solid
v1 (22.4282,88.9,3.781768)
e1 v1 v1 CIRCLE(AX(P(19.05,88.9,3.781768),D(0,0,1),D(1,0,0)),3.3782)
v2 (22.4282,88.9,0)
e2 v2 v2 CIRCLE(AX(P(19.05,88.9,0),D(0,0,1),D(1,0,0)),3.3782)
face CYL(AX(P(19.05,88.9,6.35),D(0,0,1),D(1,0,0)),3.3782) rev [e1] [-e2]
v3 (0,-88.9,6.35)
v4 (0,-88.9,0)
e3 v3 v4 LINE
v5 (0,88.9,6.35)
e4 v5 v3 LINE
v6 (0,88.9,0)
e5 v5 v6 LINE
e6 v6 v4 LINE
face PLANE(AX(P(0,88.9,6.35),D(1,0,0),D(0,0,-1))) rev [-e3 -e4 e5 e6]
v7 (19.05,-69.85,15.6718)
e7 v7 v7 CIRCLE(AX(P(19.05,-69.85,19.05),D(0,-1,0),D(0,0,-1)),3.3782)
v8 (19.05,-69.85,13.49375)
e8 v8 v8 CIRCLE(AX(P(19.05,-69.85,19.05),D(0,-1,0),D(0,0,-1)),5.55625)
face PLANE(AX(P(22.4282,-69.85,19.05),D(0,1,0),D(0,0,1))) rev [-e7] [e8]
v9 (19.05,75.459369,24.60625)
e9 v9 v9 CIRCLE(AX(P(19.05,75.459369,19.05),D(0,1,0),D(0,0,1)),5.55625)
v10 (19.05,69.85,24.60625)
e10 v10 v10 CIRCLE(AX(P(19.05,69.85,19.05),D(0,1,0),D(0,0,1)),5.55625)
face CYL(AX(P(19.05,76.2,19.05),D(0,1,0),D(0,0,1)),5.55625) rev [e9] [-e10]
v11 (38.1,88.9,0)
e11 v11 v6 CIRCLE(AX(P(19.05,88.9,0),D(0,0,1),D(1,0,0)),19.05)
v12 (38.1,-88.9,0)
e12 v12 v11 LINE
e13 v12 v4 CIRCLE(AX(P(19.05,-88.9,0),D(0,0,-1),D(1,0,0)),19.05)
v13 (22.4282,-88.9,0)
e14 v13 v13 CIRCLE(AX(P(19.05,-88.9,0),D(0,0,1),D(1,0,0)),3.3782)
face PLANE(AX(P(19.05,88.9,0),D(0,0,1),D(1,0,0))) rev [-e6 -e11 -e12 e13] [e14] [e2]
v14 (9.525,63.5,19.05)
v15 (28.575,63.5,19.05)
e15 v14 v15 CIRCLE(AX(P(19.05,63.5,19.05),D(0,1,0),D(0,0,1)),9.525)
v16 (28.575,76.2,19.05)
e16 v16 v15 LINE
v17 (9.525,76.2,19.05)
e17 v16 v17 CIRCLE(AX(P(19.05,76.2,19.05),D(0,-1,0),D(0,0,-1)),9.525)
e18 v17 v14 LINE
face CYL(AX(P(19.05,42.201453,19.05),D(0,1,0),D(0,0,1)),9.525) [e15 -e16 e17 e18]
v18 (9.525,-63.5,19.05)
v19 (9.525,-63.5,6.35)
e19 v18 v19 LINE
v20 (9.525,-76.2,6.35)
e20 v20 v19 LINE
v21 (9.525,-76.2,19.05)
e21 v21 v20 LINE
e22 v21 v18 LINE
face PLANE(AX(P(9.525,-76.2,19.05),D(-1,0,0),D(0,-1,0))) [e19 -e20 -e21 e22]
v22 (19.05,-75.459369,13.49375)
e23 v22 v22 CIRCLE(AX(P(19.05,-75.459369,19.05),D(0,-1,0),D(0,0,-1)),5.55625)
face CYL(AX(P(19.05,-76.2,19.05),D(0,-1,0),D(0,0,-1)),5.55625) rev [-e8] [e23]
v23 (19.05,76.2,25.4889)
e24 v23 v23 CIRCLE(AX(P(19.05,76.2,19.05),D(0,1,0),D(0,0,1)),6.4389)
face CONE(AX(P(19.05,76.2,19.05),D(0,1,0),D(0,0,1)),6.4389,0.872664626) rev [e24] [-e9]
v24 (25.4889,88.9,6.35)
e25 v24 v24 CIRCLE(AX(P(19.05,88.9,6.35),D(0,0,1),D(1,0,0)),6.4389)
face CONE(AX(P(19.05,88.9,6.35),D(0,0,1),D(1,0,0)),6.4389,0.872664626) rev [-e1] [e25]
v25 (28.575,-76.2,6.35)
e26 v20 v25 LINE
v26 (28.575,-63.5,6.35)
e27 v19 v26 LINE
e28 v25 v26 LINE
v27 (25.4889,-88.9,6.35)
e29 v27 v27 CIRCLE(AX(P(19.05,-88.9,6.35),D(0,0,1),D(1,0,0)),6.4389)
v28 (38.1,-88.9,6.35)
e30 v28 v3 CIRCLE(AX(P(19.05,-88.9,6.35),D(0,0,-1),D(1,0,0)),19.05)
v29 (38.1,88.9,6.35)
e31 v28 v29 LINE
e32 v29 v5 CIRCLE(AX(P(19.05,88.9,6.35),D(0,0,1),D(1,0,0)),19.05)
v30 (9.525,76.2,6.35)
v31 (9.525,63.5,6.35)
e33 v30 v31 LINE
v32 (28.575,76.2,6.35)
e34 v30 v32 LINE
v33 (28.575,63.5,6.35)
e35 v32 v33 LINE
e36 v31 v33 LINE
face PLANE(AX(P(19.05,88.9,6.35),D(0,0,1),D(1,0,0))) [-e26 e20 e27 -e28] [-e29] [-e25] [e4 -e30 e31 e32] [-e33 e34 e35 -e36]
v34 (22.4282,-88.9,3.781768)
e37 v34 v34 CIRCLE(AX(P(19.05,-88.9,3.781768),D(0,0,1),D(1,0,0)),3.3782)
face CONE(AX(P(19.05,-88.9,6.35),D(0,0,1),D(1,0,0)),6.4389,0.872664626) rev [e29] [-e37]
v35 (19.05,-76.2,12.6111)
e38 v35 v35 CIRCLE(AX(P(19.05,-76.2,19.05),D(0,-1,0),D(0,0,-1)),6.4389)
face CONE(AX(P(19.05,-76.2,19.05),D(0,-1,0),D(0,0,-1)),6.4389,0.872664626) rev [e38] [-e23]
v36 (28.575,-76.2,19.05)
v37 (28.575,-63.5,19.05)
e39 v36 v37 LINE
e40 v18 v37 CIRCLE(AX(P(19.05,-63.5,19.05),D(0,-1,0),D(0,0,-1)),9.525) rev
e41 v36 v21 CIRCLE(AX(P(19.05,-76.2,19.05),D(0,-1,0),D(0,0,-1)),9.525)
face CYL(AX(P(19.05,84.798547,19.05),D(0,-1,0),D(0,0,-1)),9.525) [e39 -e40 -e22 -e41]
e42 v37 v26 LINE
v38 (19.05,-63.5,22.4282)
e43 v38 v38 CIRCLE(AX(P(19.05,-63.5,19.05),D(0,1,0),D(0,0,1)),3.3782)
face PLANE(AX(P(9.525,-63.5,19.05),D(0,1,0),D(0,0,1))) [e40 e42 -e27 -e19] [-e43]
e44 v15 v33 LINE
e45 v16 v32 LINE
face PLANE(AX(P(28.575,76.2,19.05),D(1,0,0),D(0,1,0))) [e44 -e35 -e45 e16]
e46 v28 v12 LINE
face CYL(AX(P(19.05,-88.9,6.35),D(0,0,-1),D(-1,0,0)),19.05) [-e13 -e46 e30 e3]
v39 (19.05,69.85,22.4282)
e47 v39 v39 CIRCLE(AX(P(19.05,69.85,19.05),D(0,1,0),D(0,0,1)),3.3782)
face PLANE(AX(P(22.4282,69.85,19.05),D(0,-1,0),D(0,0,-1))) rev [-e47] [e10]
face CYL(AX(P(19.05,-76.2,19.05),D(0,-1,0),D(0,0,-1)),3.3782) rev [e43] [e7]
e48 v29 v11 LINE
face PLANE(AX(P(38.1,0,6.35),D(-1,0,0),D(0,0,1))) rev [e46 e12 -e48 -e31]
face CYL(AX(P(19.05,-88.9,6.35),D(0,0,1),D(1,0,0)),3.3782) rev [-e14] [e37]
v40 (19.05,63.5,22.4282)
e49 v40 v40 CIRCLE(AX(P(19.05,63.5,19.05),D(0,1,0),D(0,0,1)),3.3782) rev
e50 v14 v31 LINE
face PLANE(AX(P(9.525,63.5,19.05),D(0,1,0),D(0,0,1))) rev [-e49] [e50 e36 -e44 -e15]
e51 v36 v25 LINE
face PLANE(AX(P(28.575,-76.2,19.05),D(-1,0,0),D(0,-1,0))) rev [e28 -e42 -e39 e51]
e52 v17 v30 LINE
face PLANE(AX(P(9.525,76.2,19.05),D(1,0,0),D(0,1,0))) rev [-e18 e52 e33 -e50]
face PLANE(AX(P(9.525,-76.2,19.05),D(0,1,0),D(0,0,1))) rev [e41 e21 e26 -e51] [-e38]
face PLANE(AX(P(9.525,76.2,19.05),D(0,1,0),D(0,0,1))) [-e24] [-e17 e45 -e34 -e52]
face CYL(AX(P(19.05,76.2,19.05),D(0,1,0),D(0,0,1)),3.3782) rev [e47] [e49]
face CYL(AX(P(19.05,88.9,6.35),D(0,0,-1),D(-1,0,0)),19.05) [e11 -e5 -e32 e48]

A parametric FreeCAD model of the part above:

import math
import FreeCAD as App
import Part
import Sketcher
from FreeCAD import Vector
Q = App.Units.Quantity

doc = App.newDocument("Part")
body = doc.addObject("PartDesign::Body", "Body")

# Sketch on XY plane
sketch1 = doc.addObject("Sketcher::SketchObject", "Sketch")
body.addObject(sketch1)
sketch1.AttachmentSupport = (doc.XY_Plane, [""])
sketch1.MapMode = "FlatFace"
sketch1.addGeometry([
    Part.LineSegment(Vector(0, 0, 0), Vector(38, 0, 0)),
    Part.LineSegment(Vector(38, 0, 0), Vector(38, 89, 0)),
    Part.ArcOfCircle(Part.Circle(Vector(19, 89, 0), Vector(0, 0, 1), 19), math.radians(0), math.radians(180)),
    Part.LineSegment(Vector(0, 89, 0), Vector(0, 0, 0)),
], False)
sketch1.addConstraint([
    Sketcher.Constraint("Coincident", 0, 2, 1, 1),
    Sketcher.Constraint("Tangent", 1, 2, 2, 1),
    Sketcher.Constraint("Tangent", 2, 2, 3, 1),
    Sketcher.Constraint("Coincident", 3, 2, 0, 1),
    Sketcher.Constraint("Horizontal", 0),
    Sketcher.Constraint("Vertical", 1),
    Sketcher.Constraint("Vertical", 3),
    Sketcher.Constraint("Coincident", 3, 2, -1, 1),
    Sketcher.Constraint("Radius", 2, Q("0.75 in")),
    Sketcher.Constraint("DistanceY", 1, 1, 1, 2, Q("3.5 in")),
])
pad1 = doc.addObject("PartDesign::Pad", "Pad")
body.addObject(pad1)
pad1.Profile = sketch1
pad1.Length = Q("0.25 in")

# Sketch on XY plane
sketch2 = doc.addObject("Sketcher::SketchObject", "Sketch001")
body.addObject(sketch2)
sketch2.AttachmentSupport = (doc.XY_Plane, [""])
sketch2.MapMode = "FlatFace"
sketch2.AttachmentOffset = App.Placement(Vector(0, 0, 0.25 * 25.4), App.Rotation())
sketch2.addGeometry(Part.Circle(Vector(19.1, 88.9, 0), Vector(0, 0, 1), 3.4), False)
sketch2.addConstraint([
    Sketcher.Constraint("Diameter", 0, Q("0.266 in")),
    Sketcher.Constraint("DistanceY", -1, 1, 0, 3, Q("3.5 in")),
    Sketcher.Constraint("DistanceX", -1, 1, 0, 3, Q("0.75 in")),
])
doc.recompute()
hole = doc.addObject("PartDesign::Hole", "Hole")
body.addObject(hole)
hole.Profile = sketch2
hole.ThreadType = "None"
hole.Diameter = Q("0.266 in")
hole.DepthType = "ThroughAll"
hole.HoleCutType = "Countersink"
hole.HoleCutDiameter = Q("0.507 in")
hole.HoleCutCountersinkAngle = 100

# Sketch on XY plane
sketch3 = doc.addObject("Sketcher::SketchObject", "Sketch002")
body.addObject(sketch3)
sketch3.AttachmentSupport = (doc.XY_Plane, [""])
sketch3.MapMode = "FlatFace"
sketch3.AttachmentOffset = App.Placement(Vector(0, 0, 0.25 * 25.4), App.Rotation())
sketch3.addGeometry([
    Part.LineSegment(Vector(10, 76, 0), Vector(10, 64, 0)),
    Part.LineSegment(Vector(10, 64, 0), Vector(29, 64, 0)),
    Part.LineSegment(Vector(29, 64, 0), Vector(29, 76, 0)),
    Part.LineSegment(Vector(29, 76, 0), Vector(10, 76, 0)),
], False)
sketch3.addConstraint([
    Sketcher.Constraint("Coincident", 0, 2, 1, 1),
    Sketcher.Constraint("Coincident", 1, 2, 2, 1),
    Sketcher.Constraint("Coincident", 2, 2, 3, 1),
    Sketcher.Constraint("Coincident", 3, 2, 0, 1),
    Sketcher.Constraint("Vertical", 0),
    Sketcher.Constraint("Horizontal", 1),
    Sketcher.Constraint("Vertical", 2),
    Sketcher.Constraint("Horizontal", 3),
    Sketcher.Constraint("DistanceY", 0, 2, 0, 1, Q("0.5 in")),
    Sketcher.Constraint("DistanceY", -1, 1, 2, 2, Q("3 in")),
    Sketcher.Constraint("DistanceX", 1, 1, 1, 2, Q("0.75 in")),
    Sketcher.Constraint("DistanceX", -1, 1, 0, 2, Q("0.375 in")),
])
pad2 = doc.addObject("PartDesign::Pad", "Pad001")
body.addObject(pad2)
pad2.Profile = sketch3
pad2.Length = Q("0.5 in")

# Sketch on XZ plane
sketch4 = doc.addObject("Sketcher::SketchObject", "Sketch003")
body.addObject(sketch4)
sketch4.AttachmentSupport = (doc.XZ_Plane, [""])
sketch4.MapMode = "FlatFace"
sketch4.AttachmentOffset = App.Placement(Vector(0, 0, -3 * 25.4), App.Rotation())
sketch4.addGeometry([
    Part.LineSegment(Vector(29, 19, 0), Vector(10, 19, 0)),
    Part.ArcOfCircle(Part.Circle(Vector(19, 19, 0), Vector(0, 0, 1), 10), math.radians(0), math.radians(180)),
], False)
sketch4.addConstraint([
    Sketcher.Constraint("Coincident", 0, 1, 1, 1),
    Sketcher.Constraint("Coincident", 1, 2, 0, 2),
    Sketcher.Constraint("Horizontal", 0),
    Sketcher.Constraint("Horizontal", 1, 3, 0, 1),
    Sketcher.Constraint("Radius", 1, Q("0.375 in")),
    Sketcher.Constraint("DistanceX", -1, 1, 1, 3, Q("0.75 in")),
    Sketcher.Constraint("DistanceY", -1, 1, 1, 3, Q("0.75 in")),
])
pad3 = doc.addObject("PartDesign::Pad", "Pad002")
body.addObject(pad3)
pad3.Profile = sketch4
pad3.Length = Q("0.5 in")

# Sketch on YZ plane
sketch5 = doc.addObject("Sketcher::SketchObject", "Sketch004")
body.addObject(sketch5)
sketch5.AttachmentSupport = (doc.YZ_Plane, [""])
sketch5.MapMode = "FlatFace"
sketch5.AttachmentOffset = App.Placement(Vector(0, 0, 0.75 * 25.4), App.Rotation())
sketch5.addGeometry([
    Part.LineSegment(Vector(-65.5, 19.1, 0), Vector(76.2, 19.1, 0)),  # 0
    Part.LineSegment(Vector(76.2, 19.1, 0), Vector(76.2, 25.5, 0)),  # 1
    Part.LineSegment(Vector(76.2, 25.5, 0), Vector(75.5, 24.6, 0)),  # 2
    Part.LineSegment(Vector(75.5, 24.6, 0), Vector(69.8, 24.6, 0)),  # 3
    Part.LineSegment(Vector(69.8, 24.6, 0), Vector(69.8, 22.4, 0)),  # 4
    Part.LineSegment(Vector(69.8, 22.4, 0), Vector(-63.5, 22.4, 0)),  # 5
    Part.LineSegment(Vector(-63.5, 22.4, 0), Vector(-65.5, 19.1, 0)),  # 6
], False)
sketch5.addGeometry(Part.LineSegment(Vector(76.2, 19.1, 0), Vector(-65.5, 19.1, 0)), True)  # axis
sketch5.addConstraint([
    Sketcher.Constraint("Coincident", 0, 2, 1, 1),
    Sketcher.Constraint("Coincident", 1, 2, 2, 1),
    Sketcher.Constraint("Coincident", 2, 2, 3, 1),
    Sketcher.Constraint("Coincident", 3, 2, 4, 1),
    Sketcher.Constraint("Coincident", 4, 2, 5, 1),
    Sketcher.Constraint("Coincident", 5, 2, 6, 1),
    Sketcher.Constraint("Coincident", 6, 2, 0, 1),
    Sketcher.Constraint("Horizontal", 0),
    Sketcher.Constraint("Vertical", 1),
    Sketcher.Constraint("Horizontal", 3),
    Sketcher.Constraint("Vertical", 4),
    Sketcher.Constraint("Horizontal", 5),
    Sketcher.Constraint("Horizontal", 7),
    Sketcher.Constraint("Coincident", 7, 1, 0, 2),
    Sketcher.Constraint("Equal", 0, 7),
    Sketcher.Constraint("DistanceX", -1, 1, 0, 2, Q("3 in")),
    Sketcher.Constraint("Angle", 2, Q("-130 deg")),
    Sketcher.Constraint("Angle", 6, Q("-121 deg")),
    Sketcher.Constraint("DistanceY", -1, 1, 0, 2, Q("0.75 in")),
    Sketcher.Constraint("DistanceX", -1, 1, 3, 2, Q("2.75 in")),
    Sketcher.Constraint("DistanceY", 1, 1, 1, 2, Q("0.2535 in")),
    Sketcher.Constraint("DistanceY", -1, 1, 2, 2, Q("0.96875 in")),
    Sketcher.Constraint("DistanceY", -1, 1, 4, 2, Q("0.883 in")),
    Sketcher.Constraint("DistanceX", 5, 2, 5, 1, 133.349),
])
groove = doc.addObject("PartDesign::Groove", "Groove")
body.addObject(groove)
groove.Profile = sketch5
groove.ReferenceAxis = (sketch5, ["Axis0"])
groove.Angle = 360
doc.recompute()

mirrored = doc.addObject("PartDesign::Mirrored", "Mirrored")
body.addObject(mirrored)
mirrored.Originals = [pad1, hole, pad2, pad3, groove]
mirrored.MirrorPlane = (doc.XZ_Plane, [""])
body.Tip = mirrored

doc.recompute()
